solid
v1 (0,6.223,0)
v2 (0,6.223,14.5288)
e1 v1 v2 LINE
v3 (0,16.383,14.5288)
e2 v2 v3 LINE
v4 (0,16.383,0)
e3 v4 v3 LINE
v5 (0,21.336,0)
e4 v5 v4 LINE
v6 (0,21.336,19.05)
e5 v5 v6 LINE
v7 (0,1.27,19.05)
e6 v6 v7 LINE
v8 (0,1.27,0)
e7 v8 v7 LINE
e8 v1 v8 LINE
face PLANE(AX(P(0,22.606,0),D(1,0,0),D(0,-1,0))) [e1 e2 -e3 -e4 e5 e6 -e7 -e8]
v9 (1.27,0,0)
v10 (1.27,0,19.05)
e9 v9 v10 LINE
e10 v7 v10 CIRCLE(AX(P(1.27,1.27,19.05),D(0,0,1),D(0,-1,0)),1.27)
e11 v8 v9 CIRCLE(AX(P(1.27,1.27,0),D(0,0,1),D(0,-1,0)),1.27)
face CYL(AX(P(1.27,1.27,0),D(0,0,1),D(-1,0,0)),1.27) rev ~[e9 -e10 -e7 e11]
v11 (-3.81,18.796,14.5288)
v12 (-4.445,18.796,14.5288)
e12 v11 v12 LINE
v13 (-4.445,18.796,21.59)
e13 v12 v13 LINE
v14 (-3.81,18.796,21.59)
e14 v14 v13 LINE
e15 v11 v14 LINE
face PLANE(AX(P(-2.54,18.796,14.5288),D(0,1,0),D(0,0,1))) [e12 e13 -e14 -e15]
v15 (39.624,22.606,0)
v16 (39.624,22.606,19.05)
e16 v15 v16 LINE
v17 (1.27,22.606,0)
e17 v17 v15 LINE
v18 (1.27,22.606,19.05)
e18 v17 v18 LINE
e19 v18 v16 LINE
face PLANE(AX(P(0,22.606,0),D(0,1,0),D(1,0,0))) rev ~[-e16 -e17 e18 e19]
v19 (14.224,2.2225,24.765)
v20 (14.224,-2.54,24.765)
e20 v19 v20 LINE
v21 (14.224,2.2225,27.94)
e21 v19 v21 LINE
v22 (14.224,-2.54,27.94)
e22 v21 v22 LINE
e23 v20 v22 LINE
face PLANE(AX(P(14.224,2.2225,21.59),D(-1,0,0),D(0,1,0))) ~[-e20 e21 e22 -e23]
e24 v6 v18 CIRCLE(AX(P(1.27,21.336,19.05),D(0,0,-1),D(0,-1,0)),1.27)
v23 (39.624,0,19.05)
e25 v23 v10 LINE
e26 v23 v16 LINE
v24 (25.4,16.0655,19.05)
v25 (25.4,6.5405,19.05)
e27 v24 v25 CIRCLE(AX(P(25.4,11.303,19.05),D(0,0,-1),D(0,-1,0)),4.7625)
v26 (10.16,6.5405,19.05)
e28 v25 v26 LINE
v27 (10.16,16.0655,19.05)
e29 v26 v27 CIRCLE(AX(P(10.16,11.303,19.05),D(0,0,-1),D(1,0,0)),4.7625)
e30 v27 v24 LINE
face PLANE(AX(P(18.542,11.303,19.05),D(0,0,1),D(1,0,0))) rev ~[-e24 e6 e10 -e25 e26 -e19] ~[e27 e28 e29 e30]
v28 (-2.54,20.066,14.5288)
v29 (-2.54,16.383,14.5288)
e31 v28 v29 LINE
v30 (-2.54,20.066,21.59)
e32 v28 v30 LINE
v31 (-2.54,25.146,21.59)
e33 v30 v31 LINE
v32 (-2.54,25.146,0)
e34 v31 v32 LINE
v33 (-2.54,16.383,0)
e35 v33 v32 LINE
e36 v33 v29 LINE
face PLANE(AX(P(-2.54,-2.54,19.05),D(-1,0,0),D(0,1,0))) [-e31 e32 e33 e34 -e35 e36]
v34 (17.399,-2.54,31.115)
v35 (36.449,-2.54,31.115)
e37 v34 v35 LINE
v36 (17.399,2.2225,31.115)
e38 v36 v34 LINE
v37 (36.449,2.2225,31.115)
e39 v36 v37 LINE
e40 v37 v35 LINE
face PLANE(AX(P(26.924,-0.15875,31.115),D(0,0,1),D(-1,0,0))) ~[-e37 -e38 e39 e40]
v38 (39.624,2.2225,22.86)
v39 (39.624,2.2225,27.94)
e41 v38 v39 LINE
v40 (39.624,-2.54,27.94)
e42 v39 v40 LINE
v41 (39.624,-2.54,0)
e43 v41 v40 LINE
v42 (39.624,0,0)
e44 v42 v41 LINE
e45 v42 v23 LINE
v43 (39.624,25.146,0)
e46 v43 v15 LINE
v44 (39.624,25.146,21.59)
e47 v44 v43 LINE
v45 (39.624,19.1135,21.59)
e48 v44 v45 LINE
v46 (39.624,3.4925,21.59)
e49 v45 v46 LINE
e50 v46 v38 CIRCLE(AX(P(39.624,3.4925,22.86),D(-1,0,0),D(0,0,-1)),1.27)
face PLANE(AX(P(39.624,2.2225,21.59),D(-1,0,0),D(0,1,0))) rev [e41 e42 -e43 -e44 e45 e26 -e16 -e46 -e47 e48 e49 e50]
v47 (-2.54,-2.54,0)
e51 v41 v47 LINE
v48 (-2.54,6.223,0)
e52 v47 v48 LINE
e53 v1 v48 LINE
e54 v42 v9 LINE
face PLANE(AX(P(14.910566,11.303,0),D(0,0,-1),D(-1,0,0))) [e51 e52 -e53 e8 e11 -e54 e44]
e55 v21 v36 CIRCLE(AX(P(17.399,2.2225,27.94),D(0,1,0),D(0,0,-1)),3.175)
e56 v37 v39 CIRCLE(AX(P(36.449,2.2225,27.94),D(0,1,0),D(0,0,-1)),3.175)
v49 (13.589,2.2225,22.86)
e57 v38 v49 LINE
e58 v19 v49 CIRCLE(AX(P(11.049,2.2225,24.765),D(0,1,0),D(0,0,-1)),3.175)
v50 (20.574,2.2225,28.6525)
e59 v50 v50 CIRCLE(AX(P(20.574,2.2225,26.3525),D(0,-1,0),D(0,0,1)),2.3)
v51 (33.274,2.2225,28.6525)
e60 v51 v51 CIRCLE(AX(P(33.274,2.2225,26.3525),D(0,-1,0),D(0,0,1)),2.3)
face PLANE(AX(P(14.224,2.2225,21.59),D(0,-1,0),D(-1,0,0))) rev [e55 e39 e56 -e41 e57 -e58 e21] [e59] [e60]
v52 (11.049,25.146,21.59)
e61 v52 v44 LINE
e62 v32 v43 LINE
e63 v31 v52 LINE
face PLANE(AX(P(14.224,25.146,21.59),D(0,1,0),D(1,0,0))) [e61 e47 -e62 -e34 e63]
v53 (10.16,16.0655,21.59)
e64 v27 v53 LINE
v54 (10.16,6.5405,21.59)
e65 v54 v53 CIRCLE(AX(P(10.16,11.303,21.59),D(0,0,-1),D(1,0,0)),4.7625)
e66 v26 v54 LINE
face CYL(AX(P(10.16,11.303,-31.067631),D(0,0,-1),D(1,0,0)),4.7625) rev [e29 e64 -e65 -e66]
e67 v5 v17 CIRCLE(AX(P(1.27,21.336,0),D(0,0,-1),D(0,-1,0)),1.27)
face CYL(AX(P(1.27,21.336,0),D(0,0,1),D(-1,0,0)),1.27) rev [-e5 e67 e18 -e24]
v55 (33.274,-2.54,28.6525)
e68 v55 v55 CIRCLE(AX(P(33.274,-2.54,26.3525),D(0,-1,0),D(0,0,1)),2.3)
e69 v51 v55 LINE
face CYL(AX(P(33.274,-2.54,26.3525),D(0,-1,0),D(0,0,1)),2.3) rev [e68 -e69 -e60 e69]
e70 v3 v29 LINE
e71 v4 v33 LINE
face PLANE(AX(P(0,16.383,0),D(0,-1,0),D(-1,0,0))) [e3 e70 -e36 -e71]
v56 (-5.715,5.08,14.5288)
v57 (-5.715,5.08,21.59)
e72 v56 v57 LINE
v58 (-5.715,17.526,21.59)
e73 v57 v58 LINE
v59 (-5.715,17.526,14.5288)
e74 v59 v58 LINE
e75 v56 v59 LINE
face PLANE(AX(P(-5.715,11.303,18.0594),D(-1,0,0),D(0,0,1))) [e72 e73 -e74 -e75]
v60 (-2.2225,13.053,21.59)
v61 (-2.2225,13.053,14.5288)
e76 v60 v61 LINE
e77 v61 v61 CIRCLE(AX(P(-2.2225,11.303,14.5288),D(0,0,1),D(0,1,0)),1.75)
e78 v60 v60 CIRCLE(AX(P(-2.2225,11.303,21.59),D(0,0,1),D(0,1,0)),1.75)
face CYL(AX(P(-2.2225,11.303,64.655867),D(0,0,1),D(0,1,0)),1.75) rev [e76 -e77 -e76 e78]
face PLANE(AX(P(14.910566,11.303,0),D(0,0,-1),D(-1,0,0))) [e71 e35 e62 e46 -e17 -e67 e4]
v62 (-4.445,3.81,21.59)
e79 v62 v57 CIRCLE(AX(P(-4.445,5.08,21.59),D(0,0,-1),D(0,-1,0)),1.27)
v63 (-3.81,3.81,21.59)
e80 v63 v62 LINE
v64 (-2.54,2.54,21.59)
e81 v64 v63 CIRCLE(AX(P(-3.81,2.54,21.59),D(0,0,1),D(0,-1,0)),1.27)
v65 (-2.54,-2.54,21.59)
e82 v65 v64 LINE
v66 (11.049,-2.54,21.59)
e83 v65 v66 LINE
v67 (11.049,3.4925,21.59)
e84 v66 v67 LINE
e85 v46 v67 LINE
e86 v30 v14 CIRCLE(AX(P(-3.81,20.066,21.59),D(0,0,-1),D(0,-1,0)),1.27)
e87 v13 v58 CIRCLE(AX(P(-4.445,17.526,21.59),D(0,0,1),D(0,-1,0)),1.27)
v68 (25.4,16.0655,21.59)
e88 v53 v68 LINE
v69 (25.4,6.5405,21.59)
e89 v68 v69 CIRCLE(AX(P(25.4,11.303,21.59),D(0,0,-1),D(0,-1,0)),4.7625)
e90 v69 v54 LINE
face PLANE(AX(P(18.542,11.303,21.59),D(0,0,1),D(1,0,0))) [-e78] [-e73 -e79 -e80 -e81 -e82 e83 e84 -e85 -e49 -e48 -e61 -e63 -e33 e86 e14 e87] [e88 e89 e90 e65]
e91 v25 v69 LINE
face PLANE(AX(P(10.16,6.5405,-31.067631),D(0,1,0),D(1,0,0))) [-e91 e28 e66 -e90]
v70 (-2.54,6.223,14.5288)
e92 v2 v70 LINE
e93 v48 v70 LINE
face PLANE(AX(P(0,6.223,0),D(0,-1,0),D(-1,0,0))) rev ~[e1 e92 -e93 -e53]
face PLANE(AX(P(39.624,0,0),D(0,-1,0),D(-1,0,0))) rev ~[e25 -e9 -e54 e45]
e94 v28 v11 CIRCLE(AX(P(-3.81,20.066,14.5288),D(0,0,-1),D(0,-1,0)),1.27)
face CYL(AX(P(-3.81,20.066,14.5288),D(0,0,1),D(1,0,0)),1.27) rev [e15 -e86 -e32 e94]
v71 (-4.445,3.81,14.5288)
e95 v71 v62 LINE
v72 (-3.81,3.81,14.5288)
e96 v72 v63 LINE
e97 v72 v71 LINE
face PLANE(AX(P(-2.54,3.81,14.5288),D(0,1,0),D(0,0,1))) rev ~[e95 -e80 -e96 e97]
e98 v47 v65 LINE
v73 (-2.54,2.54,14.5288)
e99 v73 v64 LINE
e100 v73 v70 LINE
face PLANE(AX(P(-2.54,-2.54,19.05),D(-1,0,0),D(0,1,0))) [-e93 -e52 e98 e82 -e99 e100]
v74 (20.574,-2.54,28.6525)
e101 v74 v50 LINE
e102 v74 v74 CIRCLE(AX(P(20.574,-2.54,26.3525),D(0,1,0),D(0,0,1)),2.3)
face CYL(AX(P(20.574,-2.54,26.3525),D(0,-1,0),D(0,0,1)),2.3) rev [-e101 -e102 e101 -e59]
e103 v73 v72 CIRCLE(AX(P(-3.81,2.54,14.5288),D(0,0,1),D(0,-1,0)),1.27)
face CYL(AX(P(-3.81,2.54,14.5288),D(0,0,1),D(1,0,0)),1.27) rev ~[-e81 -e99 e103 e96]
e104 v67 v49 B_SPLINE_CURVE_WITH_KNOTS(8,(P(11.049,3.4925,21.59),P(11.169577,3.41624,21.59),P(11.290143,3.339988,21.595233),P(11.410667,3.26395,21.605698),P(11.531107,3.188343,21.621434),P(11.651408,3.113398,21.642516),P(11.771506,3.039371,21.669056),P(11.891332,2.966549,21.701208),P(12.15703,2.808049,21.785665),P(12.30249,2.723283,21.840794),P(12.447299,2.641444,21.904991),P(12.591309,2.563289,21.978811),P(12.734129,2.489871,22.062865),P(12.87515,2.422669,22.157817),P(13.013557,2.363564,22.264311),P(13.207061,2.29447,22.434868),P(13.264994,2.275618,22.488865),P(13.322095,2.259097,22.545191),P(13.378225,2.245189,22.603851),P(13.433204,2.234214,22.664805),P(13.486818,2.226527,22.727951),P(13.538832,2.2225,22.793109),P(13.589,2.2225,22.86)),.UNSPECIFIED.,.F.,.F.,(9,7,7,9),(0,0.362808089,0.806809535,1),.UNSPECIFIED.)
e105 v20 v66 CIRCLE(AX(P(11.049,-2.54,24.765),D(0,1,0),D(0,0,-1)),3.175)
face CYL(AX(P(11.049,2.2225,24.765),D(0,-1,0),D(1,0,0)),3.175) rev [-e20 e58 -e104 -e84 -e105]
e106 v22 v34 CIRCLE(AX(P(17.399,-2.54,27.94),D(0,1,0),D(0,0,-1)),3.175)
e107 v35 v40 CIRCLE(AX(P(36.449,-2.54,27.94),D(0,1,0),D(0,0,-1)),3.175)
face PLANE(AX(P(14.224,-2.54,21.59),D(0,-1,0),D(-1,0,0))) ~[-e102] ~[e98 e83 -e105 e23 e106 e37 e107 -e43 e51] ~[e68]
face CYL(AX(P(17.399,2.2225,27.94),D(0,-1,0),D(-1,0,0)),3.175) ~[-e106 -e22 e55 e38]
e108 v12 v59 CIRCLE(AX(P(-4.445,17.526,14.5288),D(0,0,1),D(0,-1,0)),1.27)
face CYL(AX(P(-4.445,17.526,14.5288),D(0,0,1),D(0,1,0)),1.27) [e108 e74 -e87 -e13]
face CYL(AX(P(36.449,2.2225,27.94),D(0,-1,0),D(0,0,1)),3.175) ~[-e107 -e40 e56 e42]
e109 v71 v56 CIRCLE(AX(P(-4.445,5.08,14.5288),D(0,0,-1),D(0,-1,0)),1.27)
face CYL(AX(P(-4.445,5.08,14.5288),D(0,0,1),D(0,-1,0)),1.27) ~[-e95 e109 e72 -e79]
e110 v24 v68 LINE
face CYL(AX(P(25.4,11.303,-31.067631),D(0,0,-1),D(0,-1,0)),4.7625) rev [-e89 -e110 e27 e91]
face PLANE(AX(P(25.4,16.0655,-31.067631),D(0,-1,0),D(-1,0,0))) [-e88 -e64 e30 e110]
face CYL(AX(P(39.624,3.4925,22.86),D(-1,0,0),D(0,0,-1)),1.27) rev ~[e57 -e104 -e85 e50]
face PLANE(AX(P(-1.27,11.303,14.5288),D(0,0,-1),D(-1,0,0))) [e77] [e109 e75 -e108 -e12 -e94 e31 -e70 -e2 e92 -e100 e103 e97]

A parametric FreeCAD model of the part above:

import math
import FreeCAD as App
import Part
import Sketcher

V = App.Vector
Q = App.Units.Quantity


def edges_at(feature, points):
    """Names of the edges that pass closest to the given points."""
    edges = feature.Shape.Edges
    near = lambda p: min(range(len(edges)), key=lambda i: edges[i].distToShape(Part.Vertex(*p))[0])
    return sorted({f"Edge{near(p) + 1}" for p in points})

doc = App.newDocument("Part")
body = doc.addObject("PartDesign::Body", "Body")

sketch1 = body.newObject("Sketcher::SketchObject", "Sketch")
sketch1.AttachmentSupport = (doc.getObject("XY_Plane"), [""])
sketch1.MapMode = "FlatFace"
sketch1.addGeometry([
    Part.LineSegment(V(39.624, 25.146, 0), V(-2.54, 25.146, 0)),
    Part.LineSegment(V(-2.54, 25.146, 0), V(-2.54, -2.54, 0)),
    Part.LineSegment(V(-2.54, -2.54, 0), V(39.624, -2.54, 0)),
    Part.LineSegment(V(39.624, -2.54, 0), V(39.624, 0, 0)),
    Part.LineSegment(V(39.624, 0, 0), V(0, 0, 0)),
    Part.LineSegment(V(0, 0, 0), V(0, 22.606, 0)),
    Part.LineSegment(V(0, 22.606, 0), V(39.624, 22.606, 0)),
    Part.LineSegment(V(39.624, 22.606, 0), V(39.624, 25.146, 0)),
], False)
sketch1.addConstraint([
    Sketcher.Constraint("Coincident", 0, 2, 1, 1),
    Sketcher.Constraint("Coincident", 1, 2, 2, 1),
    Sketcher.Constraint("Coincident", 2, 2, 3, 1),
    Sketcher.Constraint("Coincident", 3, 2, 4, 1),
    Sketcher.Constraint("Coincident", 4, 2, 5, 1),
    Sketcher.Constraint("Coincident", 5, 2, 6, 1),
    Sketcher.Constraint("Coincident", 6, 2, 7, 1),
    Sketcher.Constraint("Coincident", 7, 2, 0, 1),
    Sketcher.Constraint("Horizontal", 0),
    Sketcher.Constraint("Vertical", 1),
    Sketcher.Constraint("Horizontal", 2),
    Sketcher.Constraint("Vertical", 3),
    Sketcher.Constraint("Horizontal", 4),
    Sketcher.Constraint("Vertical", 5),
    Sketcher.Constraint("Horizontal", 6),
    Sketcher.Constraint("Vertical", 7),
    Sketcher.Constraint("Coincident", 4, 2, -1, 1),
    Sketcher.Constraint("Vertical", 3, 2, 6, 2),
    Sketcher.Constraint("Equal", 3, 7),
    Sketcher.Constraint("DistanceY", 3, 1, 3, 2, Q("0.1 in")),
    Sketcher.Constraint("DistanceX", 0, 2, 0, 1, Q("1.66 in")),
    Sketcher.Constraint("DistanceX", 4, 2, 4, 1, Q("1.56 in")),
    Sketcher.Constraint("DistanceY", 1, 2, 1, 1, Q("1.09 in")),
])
pad1 = body.newObject("PartDesign::Pad", "Pad")
pad1.Profile = sketch1
pad1.Length = Q("0.75 in")

sketch2 = body.newObject("Sketcher::SketchObject", "Sketch001")
sketch2.AttachmentSupport = (doc.getObject("XY_Plane"), [""])
sketch2.MapMode = "FlatFace"
sketch2.AttachmentOffset = App.Placement(V(0, 0, 0.75 * 25.4), App.Rotation())
sketch2.addGeometry([
    Part.LineSegment(V(-2.54, 25.146, 0), V(-2.54, -2.54, 0)),
    Part.LineSegment(V(-2.54, -2.54, 0), V(39.624, -2.54, 0)),
    Part.LineSegment(V(39.624, -2.54, 0), V(39.624, 25.146, 0)),
    Part.LineSegment(V(39.624, 25.146, 0), V(-2.54, 25.146, 0)),
], False)
sketch2.addConstraint([
    Sketcher.Constraint("Coincident", 0, 2, 1, 1),
    Sketcher.Constraint("Coincident", 1, 2, 2, 1),
    Sketcher.Constraint("Coincident", 2, 2, 3, 1),
    Sketcher.Constraint("Coincident", 3, 2, 0, 1),
    Sketcher.Constraint("Vertical", 0),
    Sketcher.Constraint("Horizontal", 1),
    Sketcher.Constraint("Vertical", 2),
    Sketcher.Constraint("Horizontal", 3),
    Sketcher.Constraint("DistanceX", 1, 1, 1, 2, Q("1.66 in")),
    Sketcher.Constraint("DistanceY", 0, 2, 0, 1, Q("1.09 in")),
    Sketcher.Constraint("DistanceX", 0, 2, -1, 1, Q("0.1 in")),
    Sketcher.Constraint("DistanceY", 0, 2, -1, 1, Q("0.1 in")),
])
pad2 = body.newObject("PartDesign::Pad", "Pad001")
pad2.Profile = sketch2
pad2.Length = Q("0.1 in")

sketch3 = body.newObject("Sketcher::SketchObject", "Sketch002")
sketch3.AttachmentSupport = (doc.getObject("YZ_Plane"), [""])
sketch3.MapMode = "FlatFace"
sketch3.AttachmentOffset = App.Placement(V(0, 0, -0.1 * 25.4), App.Rotation())
sketch3.addGeometry([
    Part.LineSegment(V(18.796, 14.5288, 0), V(3.81, 14.5288, 0)),
    Part.LineSegment(V(3.81, 14.5288, 0), V(3.81, 21.59, 0)),
    Part.LineSegment(V(3.81, 21.59, 0), V(18.796, 21.59, 0)),
    Part.LineSegment(V(18.796, 21.59, 0), V(18.796, 14.5288, 0)),
], False)
sketch3.addConstraint([
    Sketcher.Constraint("Coincident", 0, 2, 1, 1),
    Sketcher.Constraint("Coincident", 1, 2, 2, 1),
    Sketcher.Constraint("Coincident", 2, 2, 3, 1),
    Sketcher.Constraint("Coincident", 3, 2, 0, 1),
    Sketcher.Constraint("Horizontal", 0),
    Sketcher.Constraint("Vertical", 1),
    Sketcher.Constraint("Horizontal", 2),
    Sketcher.Constraint("Vertical", 3),
    Sketcher.Constraint("DistanceX", 0, 2, 0, 1, Q("0.59 in")),
    Sketcher.Constraint("DistanceY", 1, 1, 1, 2, Q("0.278 in")),
    Sketcher.Constraint("DistanceX", -1, 1, 0, 2, Q("0.15 in")),
    Sketcher.Constraint("DistanceY", -1, 1, 1, 2, Q("0.85 in")),
])
pad3 = body.newObject("PartDesign::Pad", "Pad002")
pad3.Profile = sketch3
pad3.Length = Q("0.125 in")
pad3.Reversed = True

sketch4 = body.newObject("Sketcher::SketchObject", "Sketch003")
sketch4.AttachmentSupport = (doc.getObject("XY_Plane"), [""])
sketch4.MapMode = "FlatFace"
sketch4.AttachmentOffset = App.Placement(V(0, 0, 0.572 * 25.4), App.Rotation())
sketch4.addGeometry(Part.Circle(V(-2.2225, 11.303, 0), V(0, 0, 1), 1.75), False)
sketch4.addConstraint([
    Sketcher.Constraint("Diameter", 0, Q("3.5 mm")),
    Sketcher.Constraint("DistanceY", -1, 1, 0, 3, Q("0.445 in")),
    Sketcher.Constraint("DistanceX", 0, 3, -1, 1, Q("0.0875 in")),
])
pocket1 = body.newObject("PartDesign::Pocket", "Pocket")
pocket1.Profile = sketch4
pocket1.Type = "ThroughAll"
pocket1.Midplane = True
doc.recompute()

fillet = body.newObject("PartDesign::Fillet", "Fillet")
fillet.Base = (pocket1, edges_at(pocket1, [
    (-2.54, 18.796, 18.059),
    (-2.54, 3.81, 18.059),
    (-5.715, 18.796, 18.059),
    (-5.715, 3.81, 18.059),
]))
fillet.Radius = Q("0.05 in")

sketch5 = body.newObject("Sketcher::SketchObject", "Sketch004")
sketch5.AttachmentSupport = (doc.getObject("XY_Plane"), [""])
sketch5.MapMode = "FlatFace"
sketch5.AttachmentOffset = App.Placement(V(0, 0, 0.85 * 25.4), App.Rotation())
sketch5.addGeometry([
    Part.ArcOfCircle(Part.Circle(V(10.16, 11.303, 0), V(0, 0, 1), 4.7625), math.radians(90), math.radians(270)),
    Part.LineSegment(V(10.16, 6.5405, 0), V(25.4, 6.5405, 0)),
    Part.ArcOfCircle(Part.Circle(V(25.4, 11.303, 0), V(0, 0, 1), 4.7625), math.radians(-90), math.radians(90)),
    Part.LineSegment(V(25.4, 16.0655, 0), V(10.16, 16.0655, 0)),
], False)
sketch5.addConstraint([
    Sketcher.Constraint("Tangent", 0, 2, 1, 1),
    Sketcher.Constraint("Tangent", 1, 2, 2, 1),
    Sketcher.Constraint("Tangent", 2, 2, 3, 1),
    Sketcher.Constraint("Tangent", 3, 2, 0, 1),
    Sketcher.Constraint("Horizontal", 1),
    Sketcher.Constraint("Horizontal", 3),
    Sketcher.Constraint("DistanceX", 1, 1, 1, 2, Q("0.6 in")),
    Sketcher.Constraint("DistanceX", -1, 1, 2, 3, Q("1 in")),
    Sketcher.Constraint("Radius", 0, Q("0.1875 in")),
    Sketcher.Constraint("DistanceY", -1, 1, 0, 3, Q("0.445 in")),
])
pocket2 = body.newObject("PartDesign::Pocket", "Pocket001")
pocket2.Profile = sketch5
pocket2.Type = "ThroughAll"
pocket2.Midplane = True

sketch6 = body.newObject("Sketcher::SketchObject", "Sketch005")
sketch6.AttachmentSupport = (doc.getObject("XY_Plane"), [""])
sketch6.MapMode = "FlatFace"
sketch6.AttachmentOffset = App.Placement(V(0, 0, 0.85 * 25.4), App.Rotation())
sketch6.addGeometry([
    Part.LineSegment(V(14.224, 25.146, 0), V(14.224, 20.3835, 0)),
    Part.LineSegment(V(14.224, 20.3835, 0), V(39.624, 20.3835, 0)),
    Part.LineSegment(V(39.624, 20.3835, 0), V(39.624, 25.146, 0)),
    Part.LineSegment(V(39.624, 25.146, 0), V(14.224, 25.146, 0)),
], False)
sketch6.addConstraint([
    Sketcher.Constraint("Coincident", 0, 2, 1, 1),
    Sketcher.Constraint("Coincident", 1, 2, 2, 1),
    Sketcher.Constraint("Coincident", 2, 2, 3, 1),
    Sketcher.Constraint("Coincident", 3, 2, 0, 1),
    Sketcher.Constraint("Vertical", 0),
    Sketcher.Constraint("Horizontal", 1),
    Sketcher.Constraint("Vertical", 2),
    Sketcher.Constraint("Horizontal", 3),
    Sketcher.Constraint("DistanceX", 1, 1, 1, 2, Q("1 in")),
    Sketcher.Constraint("DistanceY", 0, 2, 0, 1, Q("0.1875 in")),
    Sketcher.Constraint("DistanceX", -1, 1, 0, 2, Q("0.56 in")),
    Sketcher.Constraint("DistanceY", -1, 1, 2, 2, Q("0.99 in")),
])
pad4 = body.newObject("PartDesign::Pad", "Pad003")
pad4.Profile = sketch6
pad4.Length = Q("0.375 in")
doc.recompute()

fillet2 = body.newObject("PartDesign::Fillet", "Fillet001")
fillet2.Base = (pad4, edges_at(pad4, [(14.224, 22.765, 21.59), (14.224, 22.765, 31.115), (39.624, 22.765, 31.115)]))
fillet2.Radius = Q("0.125 in")
doc.recompute()

fillet3 = body.newObject("PartDesign::Fillet", "Fillet002")
fillet3.Base = (fillet2, edges_at(fillet2, [(25.337, 20.384, 21.59)]))
fillet3.Radius = Q("0.05 in")
doc.recompute()

fillet4 = body.newObject("PartDesign::Fillet", "Fillet003")
fillet4.Base = (fillet3, edges_at(fillet3, [(0, 0, 9.525), (0, 22.606, 9.525)]))
fillet4.Radius = Q("0.05 in")

sketch7 = body.newObject("Sketcher::SketchObject", "Sketch006")
sketch7.AttachmentSupport = (doc.getObject("XZ_Plane"), [""])
sketch7.MapMode = "FlatFace"
sketch7.AttachmentOffset = App.Placement(V(0, 0, -0.99 * 25.4), App.Rotation())
sketch7.addGeometry([
    Part.Circle(V(20.574, 26.3525, 0), V(0, 0, 1), 2.3),
    Part.Circle(V(33.274, 26.3525, 0), V(0, 0, 1), 2.3),
], False)
sketch7.addConstraint([
    Sketcher.Constraint("Equal", 0, 1),
    Sketcher.Constraint("Horizontal", 0, 3, 1, 3),
    Sketcher.Constraint("DistanceX", 0, 3, 1, 3, Q("0.5 in")),
    Sketcher.Constraint("Diameter", 0, Q("4.6 mm")),
    Sketcher.Constraint("DistanceX", -1, 1, 0, 3, Q("0.81 in")),
    Sketcher.Constraint("DistanceY", -1, 1, 0, 3, Q("1.0375 in")),
])
pocket3 = body.newObject("PartDesign::Pocket", "Pocket002")
pocket3.Profile = sketch7
pocket3.Length = 116.973374
pocket3.Midplane = True

sketch8 = body.newObject("Sketcher::SketchObject", "Sketch007")
sketch8.AttachmentSupport = (doc.getObject("XY_Plane"), [""])
sketch8.MapMode = "FlatFace"
sketch8.addGeometry([
    Part.LineSegment(V(0, 16.383, 0), V(0, 6.223, 0)),
    Part.LineSegment(V(0, 6.223, 0), V(-2.54, 6.223, 0)),
    Part.LineSegment(V(-2.54, 6.223, 0), V(-2.54, 16.383, 0)),
    Part.LineSegment(V(-2.54, 16.383, 0), V(0, 16.383, 0)),
], False)
sketch8.addConstraint([
    Sketcher.Constraint("Coincident", 0, 2, 1, 1),
    Sketcher.Constraint("Coincident", 1, 2, 2, 1),
    Sketcher.Constraint("Coincident", 2, 2, 3, 1),
    Sketcher.Constraint("Coincident", 3, 2, 0, 1),
    Sketcher.Constraint("Vertical", 0),
    Sketcher.Constraint("Horizontal", 1),
    Sketcher.Constraint("Vertical", 2),
    Sketcher.Constraint("Horizontal", 3),
    Sketcher.Constraint("PointOnObject", 0, 2, -2),
    Sketcher.Constraint("DistanceX", 1, 2, 1, 1, Q("0.1 in")),
    Sketcher.Constraint("DistanceY", 0, 2, 0, 1, Q("0.4 in")),
    Sketcher.Constraint("DistanceY", -1, 1, 0, 2, Q("0.245 in")),
])
pocket4 = body.newObject("PartDesign::Pocket", "Pocket003")
pocket4.Profile = sketch8
pocket4.Length = Q("0.572 in")
pocket4.Reversed = True
doc.recompute()

datumplane = body.newObject("PartDesign::Plane", "DatumPlane")
datumplane.AttachmentSupport = (doc.getObject("XZ_Plane"), [""])
datumplane.MapMode = "FlatFace"
datumplane.AttachmentOffset = App.Placement(V(0, 0, -0.445 * 25.4), App.Rotation())
mirrored = body.newObject("PartDesign::Mirrored", "Mirrored")
mirrored.Originals = [pad4, pocket3]
mirrored.MirrorPlane = (datumplane, [""])
body.Tip = mirrored
doc.recompute()

fillet5 = body.newObject("PartDesign::Fillet", "Fillet004")
fillet5.Base = (mirrored, edges_at(mirrored, [(14.224, -0.159, 21.59), (14.224, -0.159, 31.115), (39.624, -0.159, 31.115)]))
fillet5.Radius = Q("0.125 in")
doc.recompute()

fillet6 = body.newObject("PartDesign::Fillet", "Fillet005")
fillet6.Base = (fillet5, edges_at(fillet5, [(25.337, 2.223, 21.59)]))
fillet6.Radius = Q("0.05 in")

sketch9 = body.newObject("Sketcher::SketchObject", "Sketch008")
sketch9.AttachmentSupport = (doc.getObject("XZ_Plane"), [""])
sketch9.MapMode = "FlatFace"
sketch9.AttachmentOffset = App.Placement(V(0, 0, -0.99 * 25.4), App.Rotation())
sketch9.addGeometry([
    Part.LineSegment(V(-2.54, 21.59, 0), V(-2.54, 32.488598, 0)),
    Part.LineSegment(V(-2.54, 32.488598, 0), V(41.295439, 32.488598, 0)),
    Part.LineSegment(V(41.295439, 32.488598, 0), V(41.295439, 21.59, 0)),
    Part.LineSegment(V(41.295439, 21.59, 0), V(-2.54, 21.59, 0)),
], False)
sketch9.addConstraint([
    Sketcher.Constraint("Coincident", 0, 2, 1, 1),
    Sketcher.Constraint("Coincident", 1, 2, 2, 1),
    Sketcher.Constraint("Coincident", 2, 2, 3, 1),
    Sketcher.Constraint("Coincident", 3, 2, 0, 1),
    Sketcher.Constraint("Vertical", 0),
    Sketcher.Constraint("Horizontal", 1),
    Sketcher.Constraint("Vertical", 2),
    Sketcher.Constraint("Horizontal", 3),
    Sketcher.Constraint("DistanceX", 0, 2, -1, 1, Q("0.1 in")),
    Sketcher.Constraint("DistanceY", -1, 1, 2, 2, Q("0.85 in")),
    Sketcher.Constraint("DistanceX", 1, 1, 1, 2, Q("43.835439 mm")),
    Sketcher.Constraint("DistanceY", 0, 1, 0, 2, Q("10.898598 mm")),
])
pocket5 = body.newObject("PartDesign::Pocket", "Pocket004")
pocket5.Profile = sketch9
pocket5.Length = Q("0.27 in")
pocket5.Reversed = True

doc.recompute()
